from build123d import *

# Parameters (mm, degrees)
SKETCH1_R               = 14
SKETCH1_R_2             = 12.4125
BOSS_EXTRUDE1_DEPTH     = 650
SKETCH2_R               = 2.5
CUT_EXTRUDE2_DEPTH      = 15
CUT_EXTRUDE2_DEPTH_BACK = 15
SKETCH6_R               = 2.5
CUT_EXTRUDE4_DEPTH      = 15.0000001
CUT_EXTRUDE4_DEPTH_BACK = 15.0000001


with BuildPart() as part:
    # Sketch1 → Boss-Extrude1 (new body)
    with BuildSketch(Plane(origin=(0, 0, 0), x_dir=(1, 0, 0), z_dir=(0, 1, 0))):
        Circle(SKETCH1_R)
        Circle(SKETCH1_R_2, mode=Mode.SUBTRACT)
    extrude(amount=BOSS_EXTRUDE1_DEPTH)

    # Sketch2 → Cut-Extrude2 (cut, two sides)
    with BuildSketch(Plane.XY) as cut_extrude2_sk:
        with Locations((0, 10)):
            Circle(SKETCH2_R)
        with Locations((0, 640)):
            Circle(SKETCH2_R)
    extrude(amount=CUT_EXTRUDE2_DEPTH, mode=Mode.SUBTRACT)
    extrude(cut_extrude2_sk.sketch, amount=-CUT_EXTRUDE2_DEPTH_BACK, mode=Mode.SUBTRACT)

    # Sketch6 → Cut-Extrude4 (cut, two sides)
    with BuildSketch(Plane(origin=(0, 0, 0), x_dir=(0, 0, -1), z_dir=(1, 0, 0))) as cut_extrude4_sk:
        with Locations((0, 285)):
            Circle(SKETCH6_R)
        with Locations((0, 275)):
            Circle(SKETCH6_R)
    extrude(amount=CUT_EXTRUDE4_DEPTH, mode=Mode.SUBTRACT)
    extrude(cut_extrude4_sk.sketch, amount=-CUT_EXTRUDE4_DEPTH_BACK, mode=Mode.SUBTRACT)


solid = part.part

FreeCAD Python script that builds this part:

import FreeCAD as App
import Part
import Sketcher
from FreeCAD import Vector

doc = App.newDocument("Part")
body = doc.addObject("PartDesign::Body", "Body")

# Sketch on XZ plane
sketch1 = body.newObject("Sketcher::SketchObject", "Sketch")
sketch1.AttachmentSupport = (doc.getObject("XZ_Plane"), [""])
sketch1.MapMode = "FlatFace"
sketch1.addGeometry([
    Part.Circle(Vector(0, 0, 0), Vector(0, 0, 1), 14),
    Part.Circle(Vector(0, 0, 0), Vector(0, 0, 1), 12.4125),
], False)
sketch1.addConstraint([
    Sketcher.Constraint("Coincident", 0, 3, -1, 1),
    Sketcher.Constraint("Coincident", 1, 3, -1, 1),
    Sketcher.Constraint("Diameter", 0, 28.0),
    Sketcher.Constraint("Diameter", 1, 24.825),
])
pad1 = body.newObject("PartDesign::Pad", "Pad")
pad1.Profile = sketch1
pad1.Length = 650
pad1.Reversed = True

# Sketch on XY plane
sketch2 = body.newObject("Sketcher::SketchObject", "Sketch001")
sketch2.AttachmentSupport = (doc.getObject("XY_Plane"), [""])
sketch2.MapMode = "FlatFace"
sketch2.addGeometry([
    Part.Circle(Vector(0, 10, 0), Vector(0, 0, 1), 2.5),
    Part.Circle(Vector(0, 640, 0), Vector(0, 0, 1), 2.5),
], False)
sketch2.addConstraint([
    Sketcher.Constraint("Equal", 0, 1),
    Sketcher.Constraint("PointOnObject", 0, 3, -2),
    Sketcher.Constraint("PointOnObject", 1, 3, -2),
    Sketcher.Constraint("Diameter", 0, 5.0),
    Sketcher.Constraint("DistanceY", -1, 1, 0, 3, 10.0),
    Sketcher.Constraint("DistanceY", -1, 1, 1, 3, 640.0),
])
pocket1 = body.newObject("PartDesign::Pocket", "Pocket")
pocket1.Profile = sketch2
pocket1.Type = "ThroughAll"
pocket1.Midplane = True

# Sketch on YZ plane
sketch3 = body.newObject("Sketcher::SketchObject", "Sketch002")
sketch3.AttachmentSupport = (doc.getObject("YZ_Plane"), [""])
sketch3.MapMode = "FlatFace"
sketch3.addGeometry([
    Part.Circle(Vector(285, 0, 0), Vector(0, 0, 1), 2.5),
    Part.Circle(Vector(275, 0, 0), Vector(0, 0, 1), 2.5),
], False)
sketch3.addConstraint([
    Sketcher.Constraint("Equal", 0, 1),
    Sketcher.Constraint("PointOnObject", 0, 3, -1),
    Sketcher.Constraint("PointOnObject", 1, 3, -1),
    Sketcher.Constraint("Diameter", 0, 5.0),
    Sketcher.Constraint("DistanceX", -1, 1, 0, 3, 285.0),
    Sketcher.Constraint("DistanceX", -1, 1, 1, 3, 275.0),
])
pocket2 = body.newObject("PartDesign::Pocket", "Pocket001")
pocket2.Profile = sketch3
pocket2.Type = "ThroughAll"
pocket2.Midplane = True

doc.recompute()
